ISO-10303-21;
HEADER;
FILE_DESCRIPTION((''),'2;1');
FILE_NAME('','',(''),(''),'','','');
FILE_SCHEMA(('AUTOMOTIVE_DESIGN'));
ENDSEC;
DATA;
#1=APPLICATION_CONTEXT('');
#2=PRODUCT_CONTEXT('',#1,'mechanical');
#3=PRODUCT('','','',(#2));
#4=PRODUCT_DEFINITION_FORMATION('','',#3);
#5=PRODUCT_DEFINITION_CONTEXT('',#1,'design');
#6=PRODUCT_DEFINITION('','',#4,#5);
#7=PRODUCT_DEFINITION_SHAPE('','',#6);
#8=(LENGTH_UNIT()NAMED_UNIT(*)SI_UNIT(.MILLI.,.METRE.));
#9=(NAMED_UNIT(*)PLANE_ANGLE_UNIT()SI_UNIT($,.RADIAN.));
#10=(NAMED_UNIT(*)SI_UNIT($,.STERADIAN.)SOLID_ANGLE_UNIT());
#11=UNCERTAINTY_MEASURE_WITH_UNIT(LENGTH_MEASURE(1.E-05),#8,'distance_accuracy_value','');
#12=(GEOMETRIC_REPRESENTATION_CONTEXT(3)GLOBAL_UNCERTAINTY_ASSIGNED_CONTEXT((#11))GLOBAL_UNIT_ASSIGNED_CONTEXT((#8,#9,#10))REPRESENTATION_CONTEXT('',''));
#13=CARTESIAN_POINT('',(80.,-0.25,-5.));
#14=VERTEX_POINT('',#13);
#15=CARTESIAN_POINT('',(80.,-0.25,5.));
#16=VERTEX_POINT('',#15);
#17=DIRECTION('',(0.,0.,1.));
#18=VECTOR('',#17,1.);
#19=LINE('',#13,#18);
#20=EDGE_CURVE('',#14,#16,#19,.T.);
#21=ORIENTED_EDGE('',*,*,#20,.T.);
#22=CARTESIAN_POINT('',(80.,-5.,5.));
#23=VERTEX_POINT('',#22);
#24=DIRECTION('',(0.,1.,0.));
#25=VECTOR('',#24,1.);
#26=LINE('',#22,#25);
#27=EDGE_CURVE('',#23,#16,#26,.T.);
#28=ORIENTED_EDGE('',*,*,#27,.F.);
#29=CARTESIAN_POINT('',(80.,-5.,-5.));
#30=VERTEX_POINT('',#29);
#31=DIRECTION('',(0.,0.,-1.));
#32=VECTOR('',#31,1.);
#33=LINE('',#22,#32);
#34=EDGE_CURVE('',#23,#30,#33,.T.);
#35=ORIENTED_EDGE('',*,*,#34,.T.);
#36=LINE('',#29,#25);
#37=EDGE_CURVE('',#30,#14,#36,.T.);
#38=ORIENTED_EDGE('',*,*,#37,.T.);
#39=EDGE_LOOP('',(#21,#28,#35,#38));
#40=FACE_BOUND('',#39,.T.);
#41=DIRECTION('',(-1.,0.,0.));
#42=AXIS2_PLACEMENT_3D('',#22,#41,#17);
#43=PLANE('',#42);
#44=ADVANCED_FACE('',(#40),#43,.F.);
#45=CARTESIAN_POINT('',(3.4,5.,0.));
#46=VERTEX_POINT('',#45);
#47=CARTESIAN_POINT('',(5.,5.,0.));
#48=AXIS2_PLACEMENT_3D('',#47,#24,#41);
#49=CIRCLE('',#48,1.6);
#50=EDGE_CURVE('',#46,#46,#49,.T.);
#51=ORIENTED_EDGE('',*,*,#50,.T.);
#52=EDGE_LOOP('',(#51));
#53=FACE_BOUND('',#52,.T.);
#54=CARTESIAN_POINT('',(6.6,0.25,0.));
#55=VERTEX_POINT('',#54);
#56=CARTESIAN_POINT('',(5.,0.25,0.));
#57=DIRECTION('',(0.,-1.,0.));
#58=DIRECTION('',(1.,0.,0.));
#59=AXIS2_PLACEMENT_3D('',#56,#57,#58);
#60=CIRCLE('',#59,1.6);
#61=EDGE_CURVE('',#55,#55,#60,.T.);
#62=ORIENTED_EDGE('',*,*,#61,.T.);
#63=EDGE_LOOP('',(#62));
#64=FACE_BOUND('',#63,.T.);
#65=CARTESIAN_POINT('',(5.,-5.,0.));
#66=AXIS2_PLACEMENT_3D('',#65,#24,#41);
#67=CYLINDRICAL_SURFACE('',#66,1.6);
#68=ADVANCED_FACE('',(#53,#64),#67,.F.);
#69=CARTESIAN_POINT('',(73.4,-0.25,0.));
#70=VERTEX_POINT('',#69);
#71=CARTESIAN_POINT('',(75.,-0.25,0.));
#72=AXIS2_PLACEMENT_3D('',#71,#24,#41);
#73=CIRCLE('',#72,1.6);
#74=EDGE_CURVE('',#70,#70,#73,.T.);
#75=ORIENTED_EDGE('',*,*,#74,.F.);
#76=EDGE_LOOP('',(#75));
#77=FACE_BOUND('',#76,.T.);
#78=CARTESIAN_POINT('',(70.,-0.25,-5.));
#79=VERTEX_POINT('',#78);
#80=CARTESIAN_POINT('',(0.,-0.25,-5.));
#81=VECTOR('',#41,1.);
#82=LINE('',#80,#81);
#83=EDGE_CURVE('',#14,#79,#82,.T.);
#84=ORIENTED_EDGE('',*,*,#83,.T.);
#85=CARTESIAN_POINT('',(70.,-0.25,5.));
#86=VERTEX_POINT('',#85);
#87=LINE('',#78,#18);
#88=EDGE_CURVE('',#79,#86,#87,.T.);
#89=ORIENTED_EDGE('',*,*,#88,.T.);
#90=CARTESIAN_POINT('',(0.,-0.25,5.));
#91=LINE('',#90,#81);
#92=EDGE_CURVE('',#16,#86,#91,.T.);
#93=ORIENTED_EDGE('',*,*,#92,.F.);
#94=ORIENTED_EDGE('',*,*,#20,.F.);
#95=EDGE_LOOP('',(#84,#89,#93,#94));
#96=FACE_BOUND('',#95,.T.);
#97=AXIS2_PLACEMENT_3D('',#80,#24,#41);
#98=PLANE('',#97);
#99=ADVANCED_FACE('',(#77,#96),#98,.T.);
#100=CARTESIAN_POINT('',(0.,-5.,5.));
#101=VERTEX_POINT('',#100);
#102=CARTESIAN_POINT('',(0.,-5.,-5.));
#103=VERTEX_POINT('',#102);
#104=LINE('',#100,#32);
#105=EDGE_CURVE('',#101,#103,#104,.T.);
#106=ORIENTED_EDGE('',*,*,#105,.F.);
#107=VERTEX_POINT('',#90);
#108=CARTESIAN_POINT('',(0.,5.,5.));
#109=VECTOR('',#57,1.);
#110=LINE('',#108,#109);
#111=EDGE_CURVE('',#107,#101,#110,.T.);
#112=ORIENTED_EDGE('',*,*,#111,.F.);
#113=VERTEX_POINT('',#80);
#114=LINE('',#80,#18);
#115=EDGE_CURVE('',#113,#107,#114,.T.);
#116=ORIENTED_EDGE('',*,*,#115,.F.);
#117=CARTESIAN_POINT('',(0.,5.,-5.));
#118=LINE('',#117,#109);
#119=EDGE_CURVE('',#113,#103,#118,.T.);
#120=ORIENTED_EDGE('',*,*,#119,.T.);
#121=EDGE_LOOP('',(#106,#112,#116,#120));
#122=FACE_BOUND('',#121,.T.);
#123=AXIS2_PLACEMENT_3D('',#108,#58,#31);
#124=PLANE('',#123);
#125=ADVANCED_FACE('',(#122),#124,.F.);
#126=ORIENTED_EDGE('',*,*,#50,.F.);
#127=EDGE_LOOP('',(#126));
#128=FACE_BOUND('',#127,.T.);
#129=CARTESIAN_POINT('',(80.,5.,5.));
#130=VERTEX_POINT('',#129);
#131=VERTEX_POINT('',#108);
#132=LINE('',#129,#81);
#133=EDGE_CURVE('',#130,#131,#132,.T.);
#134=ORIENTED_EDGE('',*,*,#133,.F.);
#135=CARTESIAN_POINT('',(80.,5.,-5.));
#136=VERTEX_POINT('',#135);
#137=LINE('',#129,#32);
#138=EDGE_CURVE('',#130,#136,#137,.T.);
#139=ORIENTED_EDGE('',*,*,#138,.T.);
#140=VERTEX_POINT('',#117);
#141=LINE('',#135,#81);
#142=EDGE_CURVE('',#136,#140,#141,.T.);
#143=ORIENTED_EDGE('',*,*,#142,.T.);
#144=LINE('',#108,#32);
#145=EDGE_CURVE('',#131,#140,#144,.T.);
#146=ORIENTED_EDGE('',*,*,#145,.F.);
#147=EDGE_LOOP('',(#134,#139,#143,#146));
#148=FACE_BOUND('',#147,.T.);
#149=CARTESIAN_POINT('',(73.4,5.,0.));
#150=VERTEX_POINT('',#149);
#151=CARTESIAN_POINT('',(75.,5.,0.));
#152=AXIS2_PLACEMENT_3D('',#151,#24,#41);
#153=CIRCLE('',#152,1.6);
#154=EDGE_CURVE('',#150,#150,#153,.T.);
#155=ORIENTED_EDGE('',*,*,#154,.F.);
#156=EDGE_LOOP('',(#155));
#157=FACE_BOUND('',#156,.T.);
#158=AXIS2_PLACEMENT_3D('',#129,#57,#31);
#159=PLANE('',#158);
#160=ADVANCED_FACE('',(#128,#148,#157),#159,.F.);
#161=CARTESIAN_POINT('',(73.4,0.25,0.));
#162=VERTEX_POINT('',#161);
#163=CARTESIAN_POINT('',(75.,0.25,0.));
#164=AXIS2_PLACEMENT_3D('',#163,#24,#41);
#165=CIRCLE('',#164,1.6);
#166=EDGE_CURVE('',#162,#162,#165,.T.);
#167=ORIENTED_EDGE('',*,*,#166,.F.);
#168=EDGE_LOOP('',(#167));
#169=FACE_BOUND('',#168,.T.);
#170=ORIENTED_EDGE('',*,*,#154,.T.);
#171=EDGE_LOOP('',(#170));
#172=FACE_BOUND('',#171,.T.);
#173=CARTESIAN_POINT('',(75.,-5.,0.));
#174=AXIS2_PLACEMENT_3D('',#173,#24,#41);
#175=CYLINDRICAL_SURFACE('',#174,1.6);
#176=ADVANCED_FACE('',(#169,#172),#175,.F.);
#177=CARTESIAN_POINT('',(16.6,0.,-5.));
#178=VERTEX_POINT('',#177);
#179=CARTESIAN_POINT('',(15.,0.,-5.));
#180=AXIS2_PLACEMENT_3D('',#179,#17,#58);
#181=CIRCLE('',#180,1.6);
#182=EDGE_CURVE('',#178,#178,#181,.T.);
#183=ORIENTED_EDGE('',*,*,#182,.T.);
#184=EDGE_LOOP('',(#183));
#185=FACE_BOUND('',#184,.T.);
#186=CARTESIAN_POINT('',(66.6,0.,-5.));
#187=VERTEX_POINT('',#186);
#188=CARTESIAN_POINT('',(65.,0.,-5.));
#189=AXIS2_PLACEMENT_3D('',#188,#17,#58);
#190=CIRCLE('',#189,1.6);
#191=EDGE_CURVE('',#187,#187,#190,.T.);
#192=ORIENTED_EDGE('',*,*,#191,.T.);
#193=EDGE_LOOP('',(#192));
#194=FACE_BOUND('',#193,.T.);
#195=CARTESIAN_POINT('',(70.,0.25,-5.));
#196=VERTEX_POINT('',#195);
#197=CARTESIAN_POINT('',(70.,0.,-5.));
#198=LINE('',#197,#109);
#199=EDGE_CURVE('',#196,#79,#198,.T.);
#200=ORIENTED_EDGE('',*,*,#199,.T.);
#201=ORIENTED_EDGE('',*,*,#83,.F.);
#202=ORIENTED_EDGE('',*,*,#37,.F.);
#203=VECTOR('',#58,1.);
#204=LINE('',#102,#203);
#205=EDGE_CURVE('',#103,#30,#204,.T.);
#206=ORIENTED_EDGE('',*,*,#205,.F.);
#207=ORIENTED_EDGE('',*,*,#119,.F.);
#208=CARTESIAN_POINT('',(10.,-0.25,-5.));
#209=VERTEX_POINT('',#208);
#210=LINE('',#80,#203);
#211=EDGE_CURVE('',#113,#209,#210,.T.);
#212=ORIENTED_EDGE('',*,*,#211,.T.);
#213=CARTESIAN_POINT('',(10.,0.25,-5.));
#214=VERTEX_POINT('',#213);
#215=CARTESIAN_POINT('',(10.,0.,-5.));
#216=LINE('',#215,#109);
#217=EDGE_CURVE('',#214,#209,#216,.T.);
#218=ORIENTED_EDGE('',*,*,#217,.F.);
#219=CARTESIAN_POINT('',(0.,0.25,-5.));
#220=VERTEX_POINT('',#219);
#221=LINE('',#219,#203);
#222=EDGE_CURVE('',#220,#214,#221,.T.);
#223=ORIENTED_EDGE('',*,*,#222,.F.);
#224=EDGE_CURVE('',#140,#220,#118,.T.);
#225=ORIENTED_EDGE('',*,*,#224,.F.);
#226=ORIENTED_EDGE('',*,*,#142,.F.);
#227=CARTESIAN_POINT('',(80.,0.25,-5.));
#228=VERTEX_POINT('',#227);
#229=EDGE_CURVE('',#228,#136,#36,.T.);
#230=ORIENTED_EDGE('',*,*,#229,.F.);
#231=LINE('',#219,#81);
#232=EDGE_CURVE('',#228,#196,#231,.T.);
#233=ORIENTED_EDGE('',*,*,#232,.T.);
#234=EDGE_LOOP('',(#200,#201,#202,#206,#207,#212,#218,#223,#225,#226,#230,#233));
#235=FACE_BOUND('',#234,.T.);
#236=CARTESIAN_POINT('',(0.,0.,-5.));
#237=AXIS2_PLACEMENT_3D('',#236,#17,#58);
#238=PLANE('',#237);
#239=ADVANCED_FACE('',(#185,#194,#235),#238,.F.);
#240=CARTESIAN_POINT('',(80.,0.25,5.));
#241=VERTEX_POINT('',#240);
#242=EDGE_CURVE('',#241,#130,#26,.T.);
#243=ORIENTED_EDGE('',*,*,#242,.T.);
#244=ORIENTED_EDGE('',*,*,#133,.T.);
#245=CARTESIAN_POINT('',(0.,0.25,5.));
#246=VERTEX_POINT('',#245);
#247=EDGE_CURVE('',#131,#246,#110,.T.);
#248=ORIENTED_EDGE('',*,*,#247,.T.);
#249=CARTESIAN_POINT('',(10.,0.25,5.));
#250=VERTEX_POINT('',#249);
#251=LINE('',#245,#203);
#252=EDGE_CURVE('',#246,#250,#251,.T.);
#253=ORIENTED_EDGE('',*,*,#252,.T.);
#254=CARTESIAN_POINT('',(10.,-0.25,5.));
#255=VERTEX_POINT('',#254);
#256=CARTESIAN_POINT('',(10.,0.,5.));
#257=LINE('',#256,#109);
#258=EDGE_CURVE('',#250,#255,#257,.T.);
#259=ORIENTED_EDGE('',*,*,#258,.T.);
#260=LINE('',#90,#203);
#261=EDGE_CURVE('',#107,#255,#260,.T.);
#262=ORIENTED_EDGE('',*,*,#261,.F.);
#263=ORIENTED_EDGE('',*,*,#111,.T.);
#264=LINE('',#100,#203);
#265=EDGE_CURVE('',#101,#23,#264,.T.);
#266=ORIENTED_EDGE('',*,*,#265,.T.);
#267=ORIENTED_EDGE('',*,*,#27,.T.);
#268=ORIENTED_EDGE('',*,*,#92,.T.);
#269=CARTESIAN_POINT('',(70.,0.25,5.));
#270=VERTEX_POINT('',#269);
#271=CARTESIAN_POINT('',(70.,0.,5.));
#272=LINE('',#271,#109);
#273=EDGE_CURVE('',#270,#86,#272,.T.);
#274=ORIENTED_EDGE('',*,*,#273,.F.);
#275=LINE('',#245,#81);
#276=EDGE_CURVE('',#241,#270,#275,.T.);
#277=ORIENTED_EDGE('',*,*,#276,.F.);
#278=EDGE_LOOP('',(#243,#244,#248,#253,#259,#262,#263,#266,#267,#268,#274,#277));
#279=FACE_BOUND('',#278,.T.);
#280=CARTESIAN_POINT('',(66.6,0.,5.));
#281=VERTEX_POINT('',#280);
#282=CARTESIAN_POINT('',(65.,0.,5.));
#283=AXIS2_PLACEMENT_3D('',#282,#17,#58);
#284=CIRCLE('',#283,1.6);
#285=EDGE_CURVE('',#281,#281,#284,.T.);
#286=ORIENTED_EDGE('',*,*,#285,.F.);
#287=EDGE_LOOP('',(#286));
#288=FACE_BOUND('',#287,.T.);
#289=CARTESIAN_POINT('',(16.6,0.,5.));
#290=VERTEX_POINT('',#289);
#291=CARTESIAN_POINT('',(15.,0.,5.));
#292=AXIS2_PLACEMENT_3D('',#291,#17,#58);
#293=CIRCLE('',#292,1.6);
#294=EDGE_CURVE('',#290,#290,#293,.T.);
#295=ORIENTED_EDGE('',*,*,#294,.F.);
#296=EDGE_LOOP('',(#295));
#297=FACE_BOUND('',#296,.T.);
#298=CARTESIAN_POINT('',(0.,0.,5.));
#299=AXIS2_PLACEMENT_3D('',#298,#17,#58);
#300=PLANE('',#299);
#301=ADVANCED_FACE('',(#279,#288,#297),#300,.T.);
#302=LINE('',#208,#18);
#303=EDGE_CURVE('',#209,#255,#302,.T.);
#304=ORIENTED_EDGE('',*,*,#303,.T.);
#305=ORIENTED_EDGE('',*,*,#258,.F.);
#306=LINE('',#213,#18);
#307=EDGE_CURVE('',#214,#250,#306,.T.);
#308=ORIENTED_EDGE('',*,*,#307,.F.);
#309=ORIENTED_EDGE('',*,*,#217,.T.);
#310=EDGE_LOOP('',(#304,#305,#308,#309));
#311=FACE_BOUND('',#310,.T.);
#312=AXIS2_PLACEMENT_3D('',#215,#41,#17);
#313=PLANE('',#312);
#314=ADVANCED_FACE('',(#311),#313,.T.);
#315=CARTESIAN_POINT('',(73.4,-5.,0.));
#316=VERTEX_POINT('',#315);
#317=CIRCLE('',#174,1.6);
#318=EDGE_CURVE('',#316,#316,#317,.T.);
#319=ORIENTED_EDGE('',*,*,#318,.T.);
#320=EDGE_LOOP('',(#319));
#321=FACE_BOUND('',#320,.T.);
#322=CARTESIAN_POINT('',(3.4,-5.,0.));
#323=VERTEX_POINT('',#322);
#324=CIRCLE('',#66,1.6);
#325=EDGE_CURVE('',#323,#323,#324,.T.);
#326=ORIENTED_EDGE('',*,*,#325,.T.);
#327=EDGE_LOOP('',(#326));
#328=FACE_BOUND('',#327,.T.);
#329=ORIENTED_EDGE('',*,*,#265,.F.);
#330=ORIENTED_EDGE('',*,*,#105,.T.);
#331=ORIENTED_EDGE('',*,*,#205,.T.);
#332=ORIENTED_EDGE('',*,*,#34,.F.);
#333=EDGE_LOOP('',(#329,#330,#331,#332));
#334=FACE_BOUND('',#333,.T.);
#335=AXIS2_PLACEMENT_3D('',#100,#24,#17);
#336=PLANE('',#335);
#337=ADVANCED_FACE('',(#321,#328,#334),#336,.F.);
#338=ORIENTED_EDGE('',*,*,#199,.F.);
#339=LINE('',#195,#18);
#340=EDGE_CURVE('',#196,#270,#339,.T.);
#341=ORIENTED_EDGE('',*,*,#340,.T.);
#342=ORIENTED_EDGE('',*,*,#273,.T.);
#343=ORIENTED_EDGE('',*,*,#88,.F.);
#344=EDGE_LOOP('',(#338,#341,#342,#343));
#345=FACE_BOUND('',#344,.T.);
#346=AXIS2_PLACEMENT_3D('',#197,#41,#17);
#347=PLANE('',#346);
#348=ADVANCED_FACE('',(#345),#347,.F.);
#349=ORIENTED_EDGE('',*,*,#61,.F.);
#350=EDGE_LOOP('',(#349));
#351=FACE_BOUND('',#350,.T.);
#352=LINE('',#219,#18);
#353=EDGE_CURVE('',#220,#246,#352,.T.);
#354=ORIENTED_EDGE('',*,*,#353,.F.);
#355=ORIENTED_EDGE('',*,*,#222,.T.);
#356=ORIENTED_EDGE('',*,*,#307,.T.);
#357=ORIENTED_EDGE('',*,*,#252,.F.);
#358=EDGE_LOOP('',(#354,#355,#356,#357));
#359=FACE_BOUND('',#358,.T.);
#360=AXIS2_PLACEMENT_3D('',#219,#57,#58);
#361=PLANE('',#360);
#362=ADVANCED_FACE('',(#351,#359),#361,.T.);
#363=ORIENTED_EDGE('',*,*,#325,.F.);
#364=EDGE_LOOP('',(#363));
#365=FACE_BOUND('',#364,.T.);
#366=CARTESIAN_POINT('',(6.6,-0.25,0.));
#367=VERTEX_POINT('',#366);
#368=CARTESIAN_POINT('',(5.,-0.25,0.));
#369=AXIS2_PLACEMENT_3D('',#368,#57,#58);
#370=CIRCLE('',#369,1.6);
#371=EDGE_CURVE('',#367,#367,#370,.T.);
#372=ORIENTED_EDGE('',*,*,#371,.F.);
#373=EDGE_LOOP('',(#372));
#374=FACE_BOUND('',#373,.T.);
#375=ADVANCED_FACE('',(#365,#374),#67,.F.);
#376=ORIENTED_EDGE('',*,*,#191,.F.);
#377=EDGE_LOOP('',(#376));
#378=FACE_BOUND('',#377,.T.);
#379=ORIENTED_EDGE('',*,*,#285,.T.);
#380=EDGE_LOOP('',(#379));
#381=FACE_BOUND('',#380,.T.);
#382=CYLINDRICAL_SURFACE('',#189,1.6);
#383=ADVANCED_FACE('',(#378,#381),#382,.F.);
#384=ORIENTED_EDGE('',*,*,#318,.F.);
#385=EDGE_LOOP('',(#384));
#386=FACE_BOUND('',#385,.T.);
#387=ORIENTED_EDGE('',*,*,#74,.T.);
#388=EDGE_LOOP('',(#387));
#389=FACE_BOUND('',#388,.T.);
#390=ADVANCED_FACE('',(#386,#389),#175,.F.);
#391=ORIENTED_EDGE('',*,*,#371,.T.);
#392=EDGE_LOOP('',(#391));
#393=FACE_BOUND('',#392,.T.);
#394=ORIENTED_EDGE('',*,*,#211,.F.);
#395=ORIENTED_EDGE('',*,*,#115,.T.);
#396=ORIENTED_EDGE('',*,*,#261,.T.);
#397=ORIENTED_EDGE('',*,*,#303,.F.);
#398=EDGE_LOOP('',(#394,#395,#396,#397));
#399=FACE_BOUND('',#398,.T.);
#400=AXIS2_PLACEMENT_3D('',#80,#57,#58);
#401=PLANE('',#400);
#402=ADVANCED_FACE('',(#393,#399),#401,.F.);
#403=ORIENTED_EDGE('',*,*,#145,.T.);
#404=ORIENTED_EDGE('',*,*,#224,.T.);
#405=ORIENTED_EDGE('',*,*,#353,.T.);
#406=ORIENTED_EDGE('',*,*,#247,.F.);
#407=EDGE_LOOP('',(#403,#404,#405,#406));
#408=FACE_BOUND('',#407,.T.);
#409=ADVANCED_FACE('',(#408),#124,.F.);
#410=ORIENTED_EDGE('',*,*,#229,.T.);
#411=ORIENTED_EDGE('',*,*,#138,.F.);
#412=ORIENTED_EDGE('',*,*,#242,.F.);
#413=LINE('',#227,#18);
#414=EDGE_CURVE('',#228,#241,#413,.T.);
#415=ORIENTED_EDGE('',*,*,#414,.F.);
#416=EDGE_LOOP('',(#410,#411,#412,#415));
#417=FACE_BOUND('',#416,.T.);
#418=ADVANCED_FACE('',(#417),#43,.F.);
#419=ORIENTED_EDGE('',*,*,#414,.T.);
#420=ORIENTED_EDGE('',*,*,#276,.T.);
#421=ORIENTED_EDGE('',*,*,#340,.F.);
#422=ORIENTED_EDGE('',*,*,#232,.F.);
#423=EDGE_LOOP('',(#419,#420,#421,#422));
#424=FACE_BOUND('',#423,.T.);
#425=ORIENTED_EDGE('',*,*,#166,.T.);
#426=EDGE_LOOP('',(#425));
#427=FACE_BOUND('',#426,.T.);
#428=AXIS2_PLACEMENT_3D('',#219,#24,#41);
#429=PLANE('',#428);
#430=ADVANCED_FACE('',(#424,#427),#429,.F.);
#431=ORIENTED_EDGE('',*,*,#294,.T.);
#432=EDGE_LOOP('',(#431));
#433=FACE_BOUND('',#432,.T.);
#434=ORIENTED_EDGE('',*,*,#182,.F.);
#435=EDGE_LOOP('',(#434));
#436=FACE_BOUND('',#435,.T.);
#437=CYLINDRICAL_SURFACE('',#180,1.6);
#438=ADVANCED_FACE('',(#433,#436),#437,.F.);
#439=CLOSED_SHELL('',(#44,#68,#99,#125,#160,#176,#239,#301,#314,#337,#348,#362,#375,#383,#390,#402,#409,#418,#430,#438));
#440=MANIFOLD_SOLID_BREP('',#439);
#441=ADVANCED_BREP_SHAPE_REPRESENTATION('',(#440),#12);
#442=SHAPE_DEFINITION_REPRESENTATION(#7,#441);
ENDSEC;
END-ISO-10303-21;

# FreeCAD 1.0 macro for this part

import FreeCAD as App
import Part
import Sketcher
from FreeCAD import Vector

doc = App.newDocument("Part")
body = doc.addObject("PartDesign::Body", "Body")

# Sketch on XY plane
sketch1 = body.newObject("Sketcher::SketchObject", "Sketch")
sketch1.AttachmentSupport = (doc.getObject("XY_Plane"), [""])
sketch1.MapMode = "FlatFace"
sketch1.addGeometry(Part.LineSegment(Vector(0, 5, 0), Vector(0, -5, 0)), False)
sketch1.addGeometry(Part.LineSegment(Vector(0, -5, 0), Vector(80, -5, 0)), False)
sketch1.addGeometry(Part.LineSegment(Vector(80, -5, 0), Vector(80, 5, 0)), False)
sketch1.addGeometry(Part.LineSegment(Vector(80, 5, 0), Vector(0, 5, 0)), False)
sketch1.addConstraint(Sketcher.Constraint("Coincident", 0, 2, 1, 1))
sketch1.addConstraint(Sketcher.Constraint("Coincident", 1, 2, 2, 1))
sketch1.addConstraint(Sketcher.Constraint("Coincident", 2, 2, 3, 1))
sketch1.addConstraint(Sketcher.Constraint("Coincident", 3, 2, 0, 1))
sketch1.addConstraint(Sketcher.Constraint("Vertical", 0))
sketch1.addConstraint(Sketcher.Constraint("Horizontal", 1))
sketch1.addConstraint(Sketcher.Constraint("Vertical", 2))
sketch1.addConstraint(Sketcher.Constraint("Horizontal", 3))
sketch1.addConstraint(Sketcher.Constraint("Symmetric", 0, 2, 3, 2, -1, 1))
sketch1.addConstraint(Sketcher.Constraint("DistanceX", 1, 1, 1, 2, 80.0))
sketch1.addConstraint(Sketcher.Constraint("DistanceY", 0, 2, 0, 1, 10.0))
pad1 = body.newObject("PartDesign::Pad", "Pad")
pad1.Profile = sketch1
pad1.Length = 10
pad1.Midplane = True

# Sketch on XY plane
sketch2 = body.newObject("Sketcher::SketchObject", "Sketch001")
sketch2.AttachmentSupport = (doc.getObject("XY_Plane"), [""])
sketch2.MapMode = "FlatFace"
sketch2.AttachmentOffset = App.Placement(Vector(0, 0, 5), App.Rotation())
sketch2.addGeometry(Part.LineSegment(Vector(0, 0.25, 0), Vector(0, -0.25, 0)), False)
sketch2.addGeometry(Part.LineSegment(Vector(0, -0.25, 0), Vector(10, -0.25, 0)), False)
sketch2.addGeometry(Part.LineSegment(Vector(10, -0.25, 0), Vector(10, 0.25, 0)), False)
sketch2.addGeometry(Part.LineSegment(Vector(10, 0.25, 0), Vector(0, 0.25, 0)), False)
sketch2.addGeometry(Part.LineSegment(Vector(70, 0.25, 0), Vector(70, -0.25, 0)), False)
sketch2.addGeometry(Part.LineSegment(Vector(70, -0.25, 0), Vector(80, -0.25, 0)), False)
sketch2.addGeometry(Part.LineSegment(Vector(80, -0.25, 0), Vector(80, 0.25, 0)), False)
sketch2.addGeometry(Part.LineSegment(Vector(80, 0.25, 0), Vector(70, 0.25, 0)), False)
sketch2.addConstraint(Sketcher.Constraint("Coincident", 0, 2, 1, 1))
sketch2.addConstraint(Sketcher.Constraint("Coincident", 1, 2, 2, 1))
sketch2.addConstraint(Sketcher.Constraint("Coincident", 2, 2, 3, 1))
sketch2.addConstraint(Sketcher.Constraint("Coincident", 3, 2, 0, 1))
sketch2.addConstraint(Sketcher.Constraint("Coincident", 4, 2, 5, 1))
sketch2.addConstraint(Sketcher.Constraint("Coincident", 5, 2, 6, 1))
sketch2.addConstraint(Sketcher.Constraint("Coincident", 6, 2, 7, 1))
sketch2.addConstraint(Sketcher.Constraint("Coincident", 7, 2, 4, 1))
sketch2.addConstraint(Sketcher.Constraint("Vertical", 0))
sketch2.addConstraint(Sketcher.Constraint("Horizontal", 1))
sketch2.addConstraint(Sketcher.Constraint("Vertical", 2))
sketch2.addConstraint(Sketcher.Constraint("Horizontal", 3))
sketch2.addConstraint(Sketcher.Constraint("Vertical", 4))
sketch2.addConstraint(Sketcher.Constraint("Horizontal", 5))
sketch2.addConstraint(Sketcher.Constraint("Vertical", 6))
sketch2.addConstraint(Sketcher.Constraint("Horizontal", 7))
sketch2.addConstraint(Sketcher.Constraint("Symmetric", 0, 2, 3, 2, -1, 1))
sketch2.addConstraint(Sketcher.Constraint("Horizontal", 1, 2, 4, 2))
sketch2.addConstraint(Sketcher.Constraint("Horizontal", 3, 2, 6, 2))
sketch2.addConstraint(Sketcher.Constraint("Equal", 3, 5))
sketch2.addConstraint(Sketcher.Constraint("DistanceX", 1, 1, 1, 2, 10.0))
sketch2.addConstraint(Sketcher.Constraint("DistanceY", 0, 2, 0, 1, 0.5))
sketch2.addConstraint(Sketcher.Constraint("DistanceX", -1, 1, 4, 2, 70.0))
pocket1 = body.newObject("PartDesign::Pocket", "Pocket")
pocket1.Profile = sketch2
pocket1.Type = "ThroughAll"

# Sketch on XZ plane
sketch3 = body.newObject("Sketcher::SketchObject", "Sketch002")
sketch3.AttachmentSupport = (doc.getObject("XZ_Plane"), [""])
sketch3.MapMode = "FlatFace"
sketch3.AttachmentOffset = App.Placement(Vector(0, 0, -5), App.Rotation())
sketch3.addGeometry(Part.Circle(Vector(5, 0, 0), Vector(0, 0, 1), 1.6), False)
sketch3.addGeometry(Part.Circle(Vector(75, 0, 0), Vector(0, 0, 1), 1.6), False)
sketch3.addConstraint(Sketcher.Constraint("Equal", 0, 1))
sketch3.addConstraint(Sketcher.Constraint("PointOnObject", 0, 3, -1))
sketch3.addConstraint(Sketcher.Constraint("PointOnObject", 1, 3, -1))
sketch3.addConstraint(Sketcher.Constraint("Diameter", 0, 3.2))
sketch3.addConstraint(Sketcher.Constraint("DistanceX", -1, 1, 0, 3, 5.0))
sketch3.addConstraint(Sketcher.Constraint("DistanceX", -1, 1, 1, 3, 75.0))
pocket2 = body.newObject("PartDesign::Pocket", "Pocket001")
pocket2.Profile = sketch3
pocket2.Type = "ThroughAll"
pocket2.Reversed = True

# Sketch on XY plane
sketch4 = body.newObject("Sketcher::SketchObject", "Sketch003")
sketch4.AttachmentSupport = (doc.getObject("XY_Plane"), [""])
sketch4.MapMode = "FlatFace"
sketch4.AttachmentOffset = App.Placement(Vector(0, 0, 5), App.Rotation())
sketch4.addGeometry(Part.Circle(Vector(15, 0, 0), Vector(0, 0, 1), 1.6), False)
sketch4.addGeometry(Part.Circle(Vector(65, 0, 0), Vector(0, 0, 1), 1.6), False)
sketch4.addConstraint(Sketcher.Constraint("Equal", 0, 1))
sketch4.addConstraint(Sketcher.Constraint("PointOnObject", 0, 3, -1))
sketch4.addConstraint(Sketcher.Constraint("PointOnObject", 1, 3, -1))
sketch4.addConstraint(Sketcher.Constraint("Diameter", 0, 3.2))
sketch4.addConstraint(Sketcher.Constraint("DistanceX", -1, 1, 0, 3, 15.0))
sketch4.addConstraint(Sketcher.Constraint("DistanceX", -1, 1, 1, 3, 65.0))
pocket3 = body.newObject("PartDesign::Pocket", "Pocket002")
pocket3.Profile = sketch4
pocket3.Type = "ThroughAll"

doc.recompute()
